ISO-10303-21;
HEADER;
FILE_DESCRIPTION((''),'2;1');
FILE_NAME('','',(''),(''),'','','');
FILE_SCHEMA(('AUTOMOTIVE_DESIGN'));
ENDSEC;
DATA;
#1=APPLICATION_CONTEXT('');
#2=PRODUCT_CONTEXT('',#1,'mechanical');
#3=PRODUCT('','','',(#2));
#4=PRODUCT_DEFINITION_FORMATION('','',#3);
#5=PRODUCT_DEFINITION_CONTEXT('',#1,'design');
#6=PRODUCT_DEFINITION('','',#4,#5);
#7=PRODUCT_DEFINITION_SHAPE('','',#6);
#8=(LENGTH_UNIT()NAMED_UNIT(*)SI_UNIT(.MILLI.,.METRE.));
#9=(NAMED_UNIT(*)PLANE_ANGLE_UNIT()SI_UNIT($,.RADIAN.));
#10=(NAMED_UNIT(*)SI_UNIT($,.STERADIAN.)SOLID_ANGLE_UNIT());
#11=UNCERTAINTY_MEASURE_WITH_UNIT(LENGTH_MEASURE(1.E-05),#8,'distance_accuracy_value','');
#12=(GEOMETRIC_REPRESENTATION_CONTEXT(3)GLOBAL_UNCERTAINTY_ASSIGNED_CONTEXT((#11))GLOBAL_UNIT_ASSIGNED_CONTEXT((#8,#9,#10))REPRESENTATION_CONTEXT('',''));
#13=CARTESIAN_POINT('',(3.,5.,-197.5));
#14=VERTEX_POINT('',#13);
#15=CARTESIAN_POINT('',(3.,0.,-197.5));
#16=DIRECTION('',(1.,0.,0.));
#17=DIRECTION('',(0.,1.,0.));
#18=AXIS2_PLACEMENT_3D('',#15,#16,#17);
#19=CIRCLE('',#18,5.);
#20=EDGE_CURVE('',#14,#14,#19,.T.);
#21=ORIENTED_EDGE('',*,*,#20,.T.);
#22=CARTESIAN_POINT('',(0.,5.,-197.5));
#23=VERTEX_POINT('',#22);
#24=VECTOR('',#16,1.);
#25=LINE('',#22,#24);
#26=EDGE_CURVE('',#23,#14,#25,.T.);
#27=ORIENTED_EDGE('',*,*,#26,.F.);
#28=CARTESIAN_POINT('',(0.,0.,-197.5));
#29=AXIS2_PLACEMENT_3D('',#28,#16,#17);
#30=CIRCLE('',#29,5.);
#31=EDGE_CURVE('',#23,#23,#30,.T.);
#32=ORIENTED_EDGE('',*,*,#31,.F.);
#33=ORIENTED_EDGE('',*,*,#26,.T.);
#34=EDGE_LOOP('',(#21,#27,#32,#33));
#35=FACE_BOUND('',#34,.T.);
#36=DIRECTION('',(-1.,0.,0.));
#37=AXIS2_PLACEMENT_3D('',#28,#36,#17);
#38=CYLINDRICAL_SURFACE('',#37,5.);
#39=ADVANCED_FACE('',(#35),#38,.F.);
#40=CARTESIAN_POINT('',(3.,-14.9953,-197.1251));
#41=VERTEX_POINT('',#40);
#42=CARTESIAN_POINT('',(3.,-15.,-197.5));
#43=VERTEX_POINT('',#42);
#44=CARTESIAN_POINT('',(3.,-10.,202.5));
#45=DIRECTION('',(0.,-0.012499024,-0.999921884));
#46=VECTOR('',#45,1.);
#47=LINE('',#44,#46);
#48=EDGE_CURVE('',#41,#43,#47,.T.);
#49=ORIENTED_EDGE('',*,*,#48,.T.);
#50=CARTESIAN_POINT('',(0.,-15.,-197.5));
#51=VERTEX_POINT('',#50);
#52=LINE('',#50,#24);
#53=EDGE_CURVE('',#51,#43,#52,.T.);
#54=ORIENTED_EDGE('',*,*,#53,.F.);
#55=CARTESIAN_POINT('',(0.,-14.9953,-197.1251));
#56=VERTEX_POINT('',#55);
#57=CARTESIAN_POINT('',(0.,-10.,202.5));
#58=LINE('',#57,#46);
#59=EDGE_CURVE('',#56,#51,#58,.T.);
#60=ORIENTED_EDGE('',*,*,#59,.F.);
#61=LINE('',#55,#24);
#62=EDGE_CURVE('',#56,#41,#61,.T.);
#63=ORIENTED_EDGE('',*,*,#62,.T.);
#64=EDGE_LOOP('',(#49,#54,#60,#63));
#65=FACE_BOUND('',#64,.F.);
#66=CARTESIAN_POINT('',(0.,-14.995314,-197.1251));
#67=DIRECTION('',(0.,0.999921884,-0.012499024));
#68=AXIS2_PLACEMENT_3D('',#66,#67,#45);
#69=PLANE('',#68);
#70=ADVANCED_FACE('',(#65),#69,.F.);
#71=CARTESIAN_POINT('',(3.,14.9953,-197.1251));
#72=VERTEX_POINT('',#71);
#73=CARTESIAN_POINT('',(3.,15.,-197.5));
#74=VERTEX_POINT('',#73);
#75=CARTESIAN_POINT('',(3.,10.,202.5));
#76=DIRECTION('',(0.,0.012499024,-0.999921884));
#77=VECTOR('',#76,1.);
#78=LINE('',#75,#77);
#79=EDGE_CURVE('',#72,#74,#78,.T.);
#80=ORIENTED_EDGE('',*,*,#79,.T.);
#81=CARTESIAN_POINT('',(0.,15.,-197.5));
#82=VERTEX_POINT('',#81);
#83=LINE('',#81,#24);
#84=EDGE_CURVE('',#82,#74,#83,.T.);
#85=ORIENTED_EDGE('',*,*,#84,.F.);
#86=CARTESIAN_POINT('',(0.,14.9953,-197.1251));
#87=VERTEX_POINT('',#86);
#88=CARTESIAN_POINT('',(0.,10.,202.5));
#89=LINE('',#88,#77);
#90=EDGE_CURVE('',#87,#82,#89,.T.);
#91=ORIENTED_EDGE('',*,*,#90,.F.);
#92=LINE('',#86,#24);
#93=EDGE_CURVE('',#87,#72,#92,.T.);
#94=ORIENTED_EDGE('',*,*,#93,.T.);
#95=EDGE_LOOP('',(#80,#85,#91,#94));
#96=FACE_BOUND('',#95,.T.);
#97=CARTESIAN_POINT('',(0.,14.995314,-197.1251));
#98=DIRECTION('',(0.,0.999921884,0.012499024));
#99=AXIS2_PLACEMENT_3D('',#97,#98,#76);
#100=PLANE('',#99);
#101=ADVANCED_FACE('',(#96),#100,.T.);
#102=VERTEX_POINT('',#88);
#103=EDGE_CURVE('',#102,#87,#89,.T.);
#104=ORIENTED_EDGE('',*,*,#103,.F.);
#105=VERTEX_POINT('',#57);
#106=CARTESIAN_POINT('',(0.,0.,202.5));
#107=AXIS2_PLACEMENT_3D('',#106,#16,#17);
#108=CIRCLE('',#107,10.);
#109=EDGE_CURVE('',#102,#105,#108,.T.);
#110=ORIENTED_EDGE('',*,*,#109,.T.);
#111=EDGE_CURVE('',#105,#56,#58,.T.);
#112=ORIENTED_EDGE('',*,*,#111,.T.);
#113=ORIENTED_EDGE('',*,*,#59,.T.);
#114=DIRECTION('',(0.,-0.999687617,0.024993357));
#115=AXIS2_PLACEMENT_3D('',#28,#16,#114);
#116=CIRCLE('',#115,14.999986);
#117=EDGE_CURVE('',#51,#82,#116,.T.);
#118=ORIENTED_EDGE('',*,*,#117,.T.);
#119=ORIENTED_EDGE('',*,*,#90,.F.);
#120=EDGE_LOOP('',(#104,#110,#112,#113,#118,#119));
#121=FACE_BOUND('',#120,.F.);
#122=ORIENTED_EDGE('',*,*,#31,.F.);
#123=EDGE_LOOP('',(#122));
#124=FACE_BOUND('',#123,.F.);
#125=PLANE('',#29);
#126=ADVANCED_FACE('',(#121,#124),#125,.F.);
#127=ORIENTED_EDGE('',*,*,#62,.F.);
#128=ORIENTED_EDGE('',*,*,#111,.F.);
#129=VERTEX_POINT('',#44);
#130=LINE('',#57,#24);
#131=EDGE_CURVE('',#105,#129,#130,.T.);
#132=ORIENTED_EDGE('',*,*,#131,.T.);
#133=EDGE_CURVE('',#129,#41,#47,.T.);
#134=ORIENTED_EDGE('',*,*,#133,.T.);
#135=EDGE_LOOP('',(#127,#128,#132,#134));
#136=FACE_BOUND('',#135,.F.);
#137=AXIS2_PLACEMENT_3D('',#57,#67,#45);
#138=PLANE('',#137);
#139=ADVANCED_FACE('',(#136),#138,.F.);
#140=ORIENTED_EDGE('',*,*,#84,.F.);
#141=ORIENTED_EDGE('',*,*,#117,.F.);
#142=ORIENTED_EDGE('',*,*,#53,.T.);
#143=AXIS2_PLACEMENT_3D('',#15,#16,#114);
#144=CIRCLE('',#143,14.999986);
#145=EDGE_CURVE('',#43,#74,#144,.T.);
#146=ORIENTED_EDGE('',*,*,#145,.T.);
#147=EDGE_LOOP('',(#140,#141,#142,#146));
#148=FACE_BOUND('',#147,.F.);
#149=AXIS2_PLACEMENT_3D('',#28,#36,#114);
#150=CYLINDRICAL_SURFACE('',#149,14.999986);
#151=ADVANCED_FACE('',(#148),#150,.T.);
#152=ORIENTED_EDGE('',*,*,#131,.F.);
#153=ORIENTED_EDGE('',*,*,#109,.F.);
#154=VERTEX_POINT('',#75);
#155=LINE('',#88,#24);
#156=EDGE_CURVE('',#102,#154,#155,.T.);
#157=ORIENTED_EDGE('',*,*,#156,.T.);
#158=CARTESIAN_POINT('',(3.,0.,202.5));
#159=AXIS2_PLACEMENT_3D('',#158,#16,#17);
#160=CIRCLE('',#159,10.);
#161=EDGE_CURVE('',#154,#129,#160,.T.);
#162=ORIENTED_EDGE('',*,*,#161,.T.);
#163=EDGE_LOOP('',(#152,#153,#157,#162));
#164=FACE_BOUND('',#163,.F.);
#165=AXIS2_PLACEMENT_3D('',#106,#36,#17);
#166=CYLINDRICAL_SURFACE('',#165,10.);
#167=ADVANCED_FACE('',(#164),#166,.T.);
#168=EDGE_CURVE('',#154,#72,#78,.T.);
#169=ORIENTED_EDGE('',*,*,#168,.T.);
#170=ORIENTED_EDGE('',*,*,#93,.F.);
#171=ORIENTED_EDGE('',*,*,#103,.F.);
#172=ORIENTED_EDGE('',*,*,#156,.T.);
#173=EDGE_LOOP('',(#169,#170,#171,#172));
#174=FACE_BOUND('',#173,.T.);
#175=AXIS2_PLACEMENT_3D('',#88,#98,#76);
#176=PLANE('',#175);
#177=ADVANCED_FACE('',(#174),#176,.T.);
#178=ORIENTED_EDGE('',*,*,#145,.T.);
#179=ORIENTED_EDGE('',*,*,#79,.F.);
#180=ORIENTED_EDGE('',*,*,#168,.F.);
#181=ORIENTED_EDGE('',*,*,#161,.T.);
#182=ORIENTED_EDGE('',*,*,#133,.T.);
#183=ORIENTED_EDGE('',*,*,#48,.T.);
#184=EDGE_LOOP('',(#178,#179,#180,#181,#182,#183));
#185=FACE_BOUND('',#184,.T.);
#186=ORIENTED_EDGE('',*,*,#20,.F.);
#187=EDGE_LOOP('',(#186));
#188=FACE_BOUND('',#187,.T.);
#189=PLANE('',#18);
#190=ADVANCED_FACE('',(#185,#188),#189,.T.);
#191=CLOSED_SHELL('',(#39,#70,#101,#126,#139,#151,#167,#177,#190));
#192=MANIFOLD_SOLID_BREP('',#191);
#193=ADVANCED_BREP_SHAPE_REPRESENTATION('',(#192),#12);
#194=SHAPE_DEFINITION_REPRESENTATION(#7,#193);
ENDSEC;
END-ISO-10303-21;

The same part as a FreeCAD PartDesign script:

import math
import FreeCAD as App
import Part
import Sketcher

doc = App.newDocument("Part")
body = doc.addObject("PartDesign::Body", "Body")

sketch1 = body.newObject("Sketcher::SketchObject", "Sketch")
sketch1.AttachmentSupport = (doc.getObject("YZ_Plane"), [""])
sketch1.MapMode = "FlatFace"
sketch1.addGeometry([
    Part.LineSegment(App.Vector(15, -198, 0), App.Vector(10, 202, 0)),
    Part.ArcOfCircle(Part.Circle(App.Vector(0, 202, 0), App.Vector(0, 0, 1), 10), math.radians(0), math.radians(180)),
    Part.LineSegment(App.Vector(-10, 202, 0), App.Vector(-15, -198, 0)),
    Part.ArcOfCircle(Part.Circle(App.Vector(0, -198, 0), App.Vector(0, 0, 1), 15), math.radians(180), math.radians(360)),
    Part.Circle(App.Vector(0, -198, 0), App.Vector(0, 0, 1), 5),
], False)
sketch1.addConstraint([
    Sketcher.Constraint("Coincident", 0, 2, 1, 1),
    Sketcher.Constraint("Coincident", 1, 2, 2, 1),
    Sketcher.Constraint("Coincident", 2, 2, 3, 1),
    Sketcher.Constraint("Coincident", 3, 2, 0, 1),
    Sketcher.Constraint("Coincident", 4, 3, 3, 3),
    Sketcher.Constraint("Symmetric", 0, 2, 1, 2, -2),
    Sketcher.Constraint("Symmetric", 2, 2, 3, 2, -2),
    Sketcher.Constraint("Horizontal", 1, 3, 0, 2),
    Sketcher.Constraint("Horizontal", 4, 3, 2, 2),
    Sketcher.Constraint("Diameter", 4, 10.0),
    Sketcher.Constraint("Radius", 1, 10.0),
    Sketcher.Constraint("Radius", 3, 15.0),
    Sketcher.Constraint("DistanceY", 3, 3, 1, 3, 400.0),
    Sketcher.Constraint("DistanceY", -1, 1, 1, 3, 202.5),
])
pad1 = body.newObject("PartDesign::Pad", "Pad")
pad1.Profile = sketch1
pad1.Length = 3

doc.recompute()
